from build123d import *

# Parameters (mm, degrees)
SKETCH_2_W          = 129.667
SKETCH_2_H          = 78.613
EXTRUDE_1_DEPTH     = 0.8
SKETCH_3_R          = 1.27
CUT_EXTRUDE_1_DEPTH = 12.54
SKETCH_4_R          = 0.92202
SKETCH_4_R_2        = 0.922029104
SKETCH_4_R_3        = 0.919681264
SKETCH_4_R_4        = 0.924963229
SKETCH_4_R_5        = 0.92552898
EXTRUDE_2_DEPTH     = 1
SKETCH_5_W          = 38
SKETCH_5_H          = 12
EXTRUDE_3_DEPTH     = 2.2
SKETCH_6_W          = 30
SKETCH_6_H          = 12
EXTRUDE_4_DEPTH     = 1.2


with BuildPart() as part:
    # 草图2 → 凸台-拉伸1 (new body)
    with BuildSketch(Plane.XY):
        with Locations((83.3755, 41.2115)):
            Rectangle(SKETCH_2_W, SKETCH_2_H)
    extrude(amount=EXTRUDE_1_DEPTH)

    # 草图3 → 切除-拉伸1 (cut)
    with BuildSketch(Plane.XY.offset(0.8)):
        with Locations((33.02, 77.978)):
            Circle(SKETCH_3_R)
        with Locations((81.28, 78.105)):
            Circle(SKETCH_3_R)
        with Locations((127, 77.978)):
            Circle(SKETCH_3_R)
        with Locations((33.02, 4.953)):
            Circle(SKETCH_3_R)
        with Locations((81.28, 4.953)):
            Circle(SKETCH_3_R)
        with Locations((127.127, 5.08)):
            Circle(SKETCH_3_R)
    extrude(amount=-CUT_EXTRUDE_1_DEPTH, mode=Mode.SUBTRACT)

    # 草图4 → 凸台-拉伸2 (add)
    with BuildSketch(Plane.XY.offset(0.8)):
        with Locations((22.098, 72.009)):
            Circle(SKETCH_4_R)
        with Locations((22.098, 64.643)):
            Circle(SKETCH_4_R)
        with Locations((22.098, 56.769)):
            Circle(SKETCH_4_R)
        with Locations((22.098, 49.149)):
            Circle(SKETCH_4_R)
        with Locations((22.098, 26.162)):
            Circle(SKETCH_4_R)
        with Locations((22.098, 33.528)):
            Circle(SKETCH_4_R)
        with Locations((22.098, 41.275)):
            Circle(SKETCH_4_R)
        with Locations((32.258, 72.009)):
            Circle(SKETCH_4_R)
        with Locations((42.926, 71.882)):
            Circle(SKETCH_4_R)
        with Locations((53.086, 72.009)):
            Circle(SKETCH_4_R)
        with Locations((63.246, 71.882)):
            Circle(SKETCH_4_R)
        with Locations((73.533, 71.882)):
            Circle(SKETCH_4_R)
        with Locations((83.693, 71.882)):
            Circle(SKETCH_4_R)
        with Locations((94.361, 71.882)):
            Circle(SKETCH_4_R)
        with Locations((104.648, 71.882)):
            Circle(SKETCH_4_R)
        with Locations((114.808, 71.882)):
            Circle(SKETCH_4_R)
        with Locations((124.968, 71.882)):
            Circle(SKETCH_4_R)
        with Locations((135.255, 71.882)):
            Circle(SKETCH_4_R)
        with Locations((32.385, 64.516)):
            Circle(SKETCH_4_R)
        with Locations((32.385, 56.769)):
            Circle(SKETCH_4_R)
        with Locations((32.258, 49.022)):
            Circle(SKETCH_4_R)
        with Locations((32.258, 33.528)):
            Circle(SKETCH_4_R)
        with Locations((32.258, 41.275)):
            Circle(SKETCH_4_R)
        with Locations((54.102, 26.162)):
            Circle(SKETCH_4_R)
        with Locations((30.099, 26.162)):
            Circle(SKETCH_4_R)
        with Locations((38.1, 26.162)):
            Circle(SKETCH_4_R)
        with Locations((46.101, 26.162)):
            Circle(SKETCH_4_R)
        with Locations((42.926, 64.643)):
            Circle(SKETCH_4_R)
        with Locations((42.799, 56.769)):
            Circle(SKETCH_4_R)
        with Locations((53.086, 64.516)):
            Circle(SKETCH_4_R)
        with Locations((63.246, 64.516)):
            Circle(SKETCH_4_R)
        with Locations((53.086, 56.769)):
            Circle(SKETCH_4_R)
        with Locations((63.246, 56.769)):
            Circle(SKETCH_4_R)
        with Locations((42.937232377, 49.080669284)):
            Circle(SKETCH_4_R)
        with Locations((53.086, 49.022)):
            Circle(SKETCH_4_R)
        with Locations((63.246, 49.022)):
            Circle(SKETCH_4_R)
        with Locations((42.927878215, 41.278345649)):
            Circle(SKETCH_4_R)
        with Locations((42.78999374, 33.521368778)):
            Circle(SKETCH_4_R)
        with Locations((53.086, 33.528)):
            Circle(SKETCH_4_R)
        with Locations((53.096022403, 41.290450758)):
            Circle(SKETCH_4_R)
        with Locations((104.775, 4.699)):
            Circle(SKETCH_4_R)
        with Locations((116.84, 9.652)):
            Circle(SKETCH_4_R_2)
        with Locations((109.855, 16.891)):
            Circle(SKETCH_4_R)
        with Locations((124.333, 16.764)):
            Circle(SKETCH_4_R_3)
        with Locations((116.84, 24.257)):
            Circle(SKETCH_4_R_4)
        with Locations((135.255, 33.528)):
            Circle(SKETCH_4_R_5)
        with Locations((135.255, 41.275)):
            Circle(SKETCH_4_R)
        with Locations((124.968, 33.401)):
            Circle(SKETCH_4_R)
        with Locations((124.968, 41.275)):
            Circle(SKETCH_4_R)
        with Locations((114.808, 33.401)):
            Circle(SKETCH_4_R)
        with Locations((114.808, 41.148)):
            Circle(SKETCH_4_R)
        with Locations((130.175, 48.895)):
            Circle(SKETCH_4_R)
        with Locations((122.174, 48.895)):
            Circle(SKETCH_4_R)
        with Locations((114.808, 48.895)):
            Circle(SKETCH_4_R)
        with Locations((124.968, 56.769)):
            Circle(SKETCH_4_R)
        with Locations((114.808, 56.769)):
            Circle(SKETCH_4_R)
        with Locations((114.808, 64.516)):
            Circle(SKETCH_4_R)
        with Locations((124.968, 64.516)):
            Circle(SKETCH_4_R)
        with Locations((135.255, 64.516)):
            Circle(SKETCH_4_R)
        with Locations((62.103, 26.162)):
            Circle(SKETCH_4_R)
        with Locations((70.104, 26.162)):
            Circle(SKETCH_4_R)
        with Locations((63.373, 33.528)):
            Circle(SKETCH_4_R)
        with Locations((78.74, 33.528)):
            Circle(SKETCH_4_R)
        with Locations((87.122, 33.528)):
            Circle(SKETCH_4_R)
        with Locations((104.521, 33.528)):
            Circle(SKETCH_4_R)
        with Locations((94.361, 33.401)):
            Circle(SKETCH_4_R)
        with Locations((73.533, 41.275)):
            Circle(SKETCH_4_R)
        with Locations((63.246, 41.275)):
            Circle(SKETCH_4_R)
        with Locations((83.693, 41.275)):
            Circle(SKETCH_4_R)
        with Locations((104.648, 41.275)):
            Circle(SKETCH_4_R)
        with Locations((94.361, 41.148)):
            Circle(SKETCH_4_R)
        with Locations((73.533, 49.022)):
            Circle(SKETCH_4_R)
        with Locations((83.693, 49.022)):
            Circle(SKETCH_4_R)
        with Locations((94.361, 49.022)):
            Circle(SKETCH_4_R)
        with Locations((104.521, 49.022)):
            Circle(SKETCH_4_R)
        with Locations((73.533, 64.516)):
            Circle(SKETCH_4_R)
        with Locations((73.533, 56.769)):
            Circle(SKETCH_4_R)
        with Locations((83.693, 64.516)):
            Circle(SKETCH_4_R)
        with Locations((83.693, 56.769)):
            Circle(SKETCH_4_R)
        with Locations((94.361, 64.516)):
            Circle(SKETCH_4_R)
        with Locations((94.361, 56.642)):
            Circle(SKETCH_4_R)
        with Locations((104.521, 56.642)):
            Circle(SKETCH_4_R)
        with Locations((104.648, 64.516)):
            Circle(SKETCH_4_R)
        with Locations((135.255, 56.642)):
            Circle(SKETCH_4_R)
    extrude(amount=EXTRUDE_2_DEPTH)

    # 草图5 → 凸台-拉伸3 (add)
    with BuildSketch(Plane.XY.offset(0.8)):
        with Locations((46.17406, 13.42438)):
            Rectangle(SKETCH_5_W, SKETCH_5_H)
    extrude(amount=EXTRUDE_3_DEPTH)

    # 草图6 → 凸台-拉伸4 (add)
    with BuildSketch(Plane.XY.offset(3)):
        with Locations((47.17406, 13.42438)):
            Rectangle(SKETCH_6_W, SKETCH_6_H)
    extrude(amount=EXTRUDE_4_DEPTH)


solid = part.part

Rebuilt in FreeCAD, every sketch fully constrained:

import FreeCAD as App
import Part
import Sketcher
from FreeCAD import Vector


def add_polygon(sketch, points):
    """Adds a closed chain of lines whose ends are joined by coincident constraints."""
    first, n = sketch.GeometryCount, len(points)
    for a, b in zip(points, points[1:] + points[:1]):
        sketch.addGeometry(Part.LineSegment(App.Vector(*a, 0), App.Vector(*b, 0)), False)
    for i in range(n):
        sketch.addConstraint(Sketcher.Constraint("Coincident", first + i, 2, first + (i + 1) % n, 1))

doc = App.newDocument("Part")
body = doc.addObject("PartDesign::Body", "Body")

# Sketch on XY plane
sketch1 = body.newObject("Sketcher::SketchObject", "Sketch")
sketch1.AttachmentSupport = (doc.getObject("XY_Plane"), [""])
sketch1.MapMode = "FlatFace"
add_polygon(sketch1, [(18.542, 80.518), (18.542, 1.905), (148.209, 1.905), (148.209, 80.518)])  # lines 0-3
sketch1.addConstraint([
    Sketcher.Constraint("Vertical", 0),
    Sketcher.Constraint("Horizontal", 1),
    Sketcher.Constraint("Vertical", 2),
    Sketcher.Constraint("Horizontal", 3),
    Sketcher.Constraint("DistanceX", 1, 1, 1, 2, 129.667),
    Sketcher.Constraint("DistanceY", 0, 2, 0, 1, 78.613),
    Sketcher.Constraint("DistanceX", -1, 1, 0, 2, 18.542),
    Sketcher.Constraint("DistanceY", -1, 1, 0, 2, 1.905),
])
pad1 = body.newObject("PartDesign::Pad", "Pad")
pad1.Profile = sketch1
pad1.Length = 0.8

# Sketch on XY plane
sketch2 = body.newObject("Sketcher::SketchObject", "Sketch001")
sketch2.AttachmentSupport = (doc.getObject("XY_Plane"), [""])
sketch2.MapMode = "FlatFace"
sketch2.AttachmentOffset = App.Placement(Vector(0, 0, 0.8), App.Rotation())
sketch2.addGeometry([
    Part.Circle(Vector(33.02, 77.978, 0), Vector(0, 0, 1), 1.27),  # 0
    Part.Circle(Vector(81.28, 78.105, 0), Vector(0, 0, 1), 1.27),  # 1
    Part.Circle(Vector(127, 77.978, 0), Vector(0, 0, 1), 1.27),  # 2
    Part.Circle(Vector(33.02, 4.953, 0), Vector(0, 0, 1), 1.27),  # 3
    Part.Circle(Vector(81.28, 4.953, 0), Vector(0, 0, 1), 1.27),  # 4
    Part.Circle(Vector(127.127, 5.08, 0), Vector(0, 0, 1), 1.27),  # 5
], False)
sketch2.addConstraint([
    Sketcher.Constraint("Equal", 0, 1),
    Sketcher.Constraint("Equal", 1, 2),
    Sketcher.Constraint("Equal", 2, 3),
    Sketcher.Constraint("Equal", 3, 4),
    Sketcher.Constraint("Equal", 4, 5),
    Sketcher.Constraint("Horizontal", 0, 3, 2, 3),
    Sketcher.Constraint("Horizontal", 3, 3, 4, 3),
    Sketcher.Constraint("Vertical", 0, 3, 3, 3),
    Sketcher.Constraint("Vertical", 1, 3, 4, 3),
    Sketcher.Constraint("Diameter", 0, 2.54),
    Sketcher.Constraint("DistanceX", -1, 1, 2, 3, 127.0),
    Sketcher.Constraint("DistanceX", -1, 1, 0, 3, 33.02),
    Sketcher.Constraint("DistanceX", -1, 1, 1, 3, 81.28),
    Sketcher.Constraint("DistanceY", -1, 1, 5, 3, 5.08),
    Sketcher.Constraint("DistanceY", -1, 1, 0, 3, 77.978),
    Sketcher.Constraint("DistanceY", -1, 1, 1, 3, 78.105),
    Sketcher.Constraint("DistanceY", -1, 1, 3, 3, 4.953),
    Sketcher.Constraint("DistanceX", -1, 1, 5, 3, 127.127),
])
pocket1 = body.newObject("PartDesign::Pocket", "Pocket")
pocket1.Profile = sketch2
pocket1.Length = 12.54

# Sketch on XY plane
sketch3 = body.newObject("Sketcher::SketchObject", "Sketch002")
sketch3.AttachmentSupport = (doc.getObject("XY_Plane"), [""])
sketch3.MapMode = "FlatFace"
sketch3.AttachmentOffset = App.Placement(Vector(0, 0, 0.8), App.Rotation())
sketch3.addGeometry([
    Part.Circle(Vector(22.098, 72.009, 0), Vector(0, 0, 1), 0.92202),  # 0
    Part.Circle(Vector(22.098, 64.643, 0), Vector(0, 0, 1), 0.92202),  # 1
    Part.Circle(Vector(22.098, 56.769, 0), Vector(0, 0, 1), 0.92202),  # 2
    Part.Circle(Vector(22.098, 49.149, 0), Vector(0, 0, 1), 0.92202),  # 3
    Part.Circle(Vector(22.098, 26.162, 0), Vector(0, 0, 1), 0.92202),  # 4
    Part.Circle(Vector(22.098, 33.528, 0), Vector(0, 0, 1), 0.92202),  # 5
    Part.Circle(Vector(22.098, 41.275, 0), Vector(0, 0, 1), 0.92202),  # 6
    Part.Circle(Vector(32.258, 72.009, 0), Vector(0, 0, 1), 0.92202),  # 7
    Part.Circle(Vector(42.926, 71.882, 0), Vector(0, 0, 1), 0.92202),  # 8
    Part.Circle(Vector(53.086, 72.009, 0), Vector(0, 0, 1), 0.92202),  # 9
    Part.Circle(Vector(63.246, 71.882, 0), Vector(0, 0, 1), 0.92202),  # 10
    Part.Circle(Vector(73.533, 71.882, 0), Vector(0, 0, 1), 0.92202),  # 11
    Part.Circle(Vector(83.693, 71.882, 0), Vector(0, 0, 1), 0.92202),  # 12
    Part.Circle(Vector(94.361, 71.882, 0), Vector(0, 0, 1), 0.92202),  # 13
    Part.Circle(Vector(104.648, 71.882, 0), Vector(0, 0, 1), 0.92202),  # 14
    Part.Circle(Vector(114.808, 71.882, 0), Vector(0, 0, 1), 0.92202),  # 15
    Part.Circle(Vector(124.968, 71.882, 0), Vector(0, 0, 1), 0.92202),  # 16
    Part.Circle(Vector(135.255, 71.882, 0), Vector(0, 0, 1), 0.92202),  # 17
    Part.Circle(Vector(32.385, 64.516, 0), Vector(0, 0, 1), 0.92202),  # 18
    Part.Circle(Vector(32.385, 56.769, 0), Vector(0, 0, 1), 0.92202),  # 19
    Part.Circle(Vector(32.258, 49.022, 0), Vector(0, 0, 1), 0.92202),  # 20
    Part.Circle(Vector(32.258, 33.528, 0), Vector(0, 0, 1), 0.92202),  # 21
    Part.Circle(Vector(32.258, 41.275, 0), Vector(0, 0, 1), 0.92202),  # 22
    Part.Circle(Vector(54.102, 26.162, 0), Vector(0, 0, 1), 0.92202),  # 23
    Part.Circle(Vector(30.099, 26.162, 0), Vector(0, 0, 1), 0.92202),  # 24
    Part.Circle(Vector(38.1, 26.162, 0), Vector(0, 0, 1), 0.92202),  # 25
    Part.Circle(Vector(46.101, 26.162, 0), Vector(0, 0, 1), 0.92202),  # 26
    Part.Circle(Vector(42.926, 64.643, 0), Vector(0, 0, 1), 0.92202),  # 27
    Part.Circle(Vector(42.799, 56.769, 0), Vector(0, 0, 1), 0.92202),  # 28
    Part.Circle(Vector(53.086, 64.516, 0), Vector(0, 0, 1), 0.92202),  # 29
    Part.Circle(Vector(63.246, 64.516, 0), Vector(0, 0, 1), 0.92202),  # 30
    Part.Circle(Vector(53.086, 56.769, 0), Vector(0, 0, 1), 0.92202),  # 31
    Part.Circle(Vector(63.246, 56.769, 0), Vector(0, 0, 1), 0.92202),  # 32
    Part.Circle(Vector(42.937232, 49.080669, 0), Vector(0, 0, 1), 0.92202),  # 33
    Part.Circle(Vector(53.086, 49.022, 0), Vector(0, 0, 1), 0.92202),  # 34
    Part.Circle(Vector(63.246, 49.022, 0), Vector(0, 0, 1), 0.92202),  # 35
    Part.Circle(Vector(42.927878, 41.278346, 0), Vector(0, 0, 1), 0.92202),  # 36
    Part.Circle(Vector(42.789994, 33.521369, 0), Vector(0, 0, 1), 0.92202),  # 37
    Part.Circle(Vector(53.086, 33.528, 0), Vector(0, 0, 1), 0.92202),  # 38
    Part.Circle(Vector(53.096022, 41.290451, 0), Vector(0, 0, 1), 0.92202),  # 39
    Part.Circle(Vector(104.775, 4.699, 0), Vector(0, 0, 1), 0.92202),  # 40
    Part.Circle(Vector(116.84, 9.652, 0), Vector(0, 0, 1), 0.922029),  # 41
    Part.Circle(Vector(109.855, 16.891, 0), Vector(0, 0, 1), 0.92202),  # 42
    Part.Circle(Vector(124.333, 16.764, 0), Vector(0, 0, 1), 0.919681),  # 43
    Part.Circle(Vector(116.84, 24.257, 0), Vector(0, 0, 1), 0.924963),  # 44
    Part.Circle(Vector(135.255, 33.528, 0), Vector(0, 0, 1), 0.925529),  # 45
    Part.Circle(Vector(135.255, 41.275, 0), Vector(0, 0, 1), 0.92202),  # 46
    Part.Circle(Vector(124.968, 33.401, 0), Vector(0, 0, 1), 0.92202),  # 47
    Part.Circle(Vector(124.968, 41.275, 0), Vector(0, 0, 1), 0.92202),  # 48
    Part.Circle(Vector(114.808, 33.401, 0), Vector(0, 0, 1), 0.92202),  # 49
    Part.Circle(Vector(114.808, 41.148, 0), Vector(0, 0, 1), 0.92202),  # 50
    Part.Circle(Vector(130.175, 48.895, 0), Vector(0, 0, 1), 0.92202),  # 51
    Part.Circle(Vector(122.174, 48.895, 0), Vector(0, 0, 1), 0.92202),  # 52
    Part.Circle(Vector(114.808, 48.895, 0), Vector(0, 0, 1), 0.92202),  # 53
    Part.Circle(Vector(124.968, 56.769, 0), Vector(0, 0, 1), 0.92202),  # 54
    Part.Circle(Vector(114.808, 56.769, 0), Vector(0, 0, 1), 0.92202),  # 55
    Part.Circle(Vector(114.808, 64.516, 0), Vector(0, 0, 1), 0.92202),  # 56
    Part.Circle(Vector(124.968, 64.516, 0), Vector(0, 0, 1), 0.92202),  # 57
    Part.Circle(Vector(135.255, 64.516, 0), Vector(0, 0, 1), 0.92202),  # 58
    Part.Circle(Vector(62.103, 26.162, 0), Vector(0, 0, 1), 0.92202),  # 59
    Part.Circle(Vector(70.104, 26.162, 0), Vector(0, 0, 1), 0.92202),  # 60
    Part.Circle(Vector(63.373, 33.528, 0), Vector(0, 0, 1), 0.92202),  # 61
    Part.Circle(Vector(78.74, 33.528, 0), Vector(0, 0, 1), 0.92202),  # 62
    Part.Circle(Vector(87.122, 33.528, 0), Vector(0, 0, 1), 0.92202),  # 63
    Part.Circle(Vector(104.521, 33.528, 0), Vector(0, 0, 1), 0.92202),  # 64
    Part.Circle(Vector(94.361, 33.401, 0), Vector(0, 0, 1), 0.92202),  # 65
    Part.Circle(Vector(73.533, 41.275, 0), Vector(0, 0, 1), 0.92202),  # 66
    Part.Circle(Vector(63.246, 41.275, 0), Vector(0, 0, 1), 0.92202),  # 67
    Part.Circle(Vector(83.693, 41.275, 0), Vector(0, 0, 1), 0.92202),  # 68
    Part.Circle(Vector(104.648, 41.275, 0), Vector(0, 0, 1), 0.92202),  # 69
    Part.Circle(Vector(94.361, 41.148, 0), Vector(0, 0, 1), 0.92202),  # 70
    Part.Circle(Vector(73.533, 49.022, 0), Vector(0, 0, 1), 0.92202),  # 71
    Part.Circle(Vector(83.693, 49.022, 0), Vector(0, 0, 1), 0.92202),  # 72
    Part.Circle(Vector(94.361, 49.022, 0), Vector(0, 0, 1), 0.92202),  # 73
    Part.Circle(Vector(104.521, 49.022, 0), Vector(0, 0, 1), 0.92202),  # 74
    Part.Circle(Vector(73.533, 64.516, 0), Vector(0, 0, 1), 0.92202),  # 75
    Part.Circle(Vector(73.533, 56.769, 0), Vector(0, 0, 1), 0.92202),  # 76
    Part.Circle(Vector(83.693, 64.516, 0), Vector(0, 0, 1), 0.92202),  # 77
    Part.Circle(Vector(83.693, 56.769, 0), Vector(0, 0, 1), 0.92202),  # 78
    Part.Circle(Vector(94.361, 64.516, 0), Vector(0, 0, 1), 0.92202),  # 79
    Part.Circle(Vector(94.361, 56.642, 0), Vector(0, 0, 1), 0.92202),  # 80
    Part.Circle(Vector(104.521, 56.642, 0), Vector(0, 0, 1), 0.92202),  # 81
    Part.Circle(Vector(104.648, 64.516, 0), Vector(0, 0, 1), 0.92202),  # 82
    Part.Circle(Vector(135.255, 56.642, 0), Vector(0, 0, 1), 0.92202),  # 83
], False)
sketch3.addConstraint([
    Sketcher.Constraint("Equal", 0, 1),
    Sketcher.Constraint("Equal", 1, 2),
    Sketcher.Constraint("Equal", 2, 3),
    Sketcher.Constraint("Equal", 3, 4),
    Sketcher.Constraint("Equal", 4, 5),
    Sketcher.Constraint("Equal", 5, 6),
    Sketcher.Constraint("Equal", 6, 7),
    Sketcher.Constraint("Equal", 7, 8),
    Sketcher.Constraint("Equal", 8, 9),
    Sketcher.Constraint("Equal", 9, 10),
    Sketcher.Constraint("Equal", 10, 11),
    Sketcher.Constraint("Equal", 11, 12),
    Sketcher.Constraint("Equal", 12, 13),
    Sketcher.Constraint("Equal", 13, 14),
    Sketcher.Constraint("Equal", 14, 15),
    Sketcher.Constraint("Equal", 15, 16),
    Sketcher.Constraint("Equal", 16, 17),
    Sketcher.Constraint("Equal", 17, 18),
    Sketcher.Constraint("Equal", 18, 19),
    Sketcher.Constraint("Equal", 19, 20),
    Sketcher.Constraint("Equal", 20, 21),
    Sketcher.Constraint("Equal", 21, 22),
    Sketcher.Constraint("Equal", 22, 23),
    Sketcher.Constraint("Equal", 23, 24),
    Sketcher.Constraint("Equal", 24, 25),
    Sketcher.Constraint("Equal", 25, 26),
    Sketcher.Constraint("Equal", 26, 27),
    Sketcher.Constraint("Equal", 27, 28),
    Sketcher.Constraint("Equal", 28, 29),
    Sketcher.Constraint("Equal", 29, 30),
    Sketcher.Constraint("Equal", 30, 31),
    Sketcher.Constraint("Equal", 31, 32),
    Sketcher.Constraint("Equal", 32, 33),
    Sketcher.Constraint("Equal", 33, 34),
    Sketcher.Constraint("Equal", 34, 35),
    Sketcher.Constraint("Equal", 35, 36),
    Sketcher.Constraint("Equal", 36, 37),
    Sketcher.Constraint("Equal", 37, 38),
    Sketcher.Constraint("Equal", 38, 39),
    Sketcher.Constraint("Equal", 39, 40),
    Sketcher.Constraint("Equal", 40, 42),
    Sketcher.Constraint("Equal", 42, 46),
    Sketcher.Constraint("Equal", 46, 47),
    Sketcher.Constraint("Equal", 47, 48),
    Sketcher.Constraint("Equal", 48, 49),
    Sketcher.Constraint("Equal", 49, 50),
    Sketcher.Constraint("Equal", 50, 51),
    Sketcher.Constraint("Equal", 51, 52),
    Sketcher.Constraint("Equal", 52, 53),
    Sketcher.Constraint("Equal", 53, 54),
    Sketcher.Constraint("Equal", 54, 55),
    Sketcher.Constraint("Equal", 55, 56),
    Sketcher.Constraint("Equal", 56, 57),
    Sketcher.Constraint("Equal", 57, 58),
    Sketcher.Constraint("Equal", 58, 59),
    Sketcher.Constraint("Equal", 59, 60),
    Sketcher.Constraint("Equal", 60, 61),
    Sketcher.Constraint("Equal", 61, 62),
    Sketcher.Constraint("Equal", 62, 63),
    Sketcher.Constraint("Equal", 63, 64),
    Sketcher.Constraint("Equal", 64, 65),
    Sketcher.Constraint("Equal", 65, 66),
    Sketcher.Constraint("Equal", 66, 67),
    Sketcher.Constraint("Equal", 67, 68),
    Sketcher.Constraint("Equal", 68, 69),
    Sketcher.Constraint("Equal", 69, 70),
    Sketcher.Constraint("Equal", 70, 71),
    Sketcher.Constraint("Equal", 71, 72),
    Sketcher.Constraint("Equal", 72, 73),
    Sketcher.Constraint("Equal", 73, 74),
    Sketcher.Constraint("Equal", 74, 75),
    Sketcher.Constraint("Equal", 75, 76),
    Sketcher.Constraint("Equal", 76, 77),
    Sketcher.Constraint("Equal", 77, 78),
    Sketcher.Constraint("Equal", 78, 79),
    Sketcher.Constraint("Equal", 79, 80),
    Sketcher.Constraint("Equal", 80, 81),
    Sketcher.Constraint("Equal", 81, 82),
    Sketcher.Constraint("Equal", 82, 83),
    Sketcher.Constraint("Horizontal", 0, 3, 7, 3),
    Sketcher.Constraint("Horizontal", 7, 3, 9, 3),
    Sketcher.Constraint("Horizontal", 8, 3, 10, 3),
    Sketcher.Constraint("Horizontal", 10, 3, 11, 3),
    Sketcher.Constraint("Horizontal", 11, 3, 12, 3),
    Sketcher.Constraint("Horizontal", 12, 3, 13, 3),
    Sketcher.Constraint("Horizontal", 13, 3, 14, 3),
    Sketcher.Constraint("Horizontal", 14, 3, 15, 3),
    Sketcher.Constraint("Horizontal", 15, 3, 16, 3),
    Sketcher.Constraint("Horizontal", 16, 3, 17, 3),
    Sketcher.Constraint("Horizontal", 2, 3, 19, 3),
    Sketcher.Constraint("Horizontal", 5, 3, 21, 3),
    Sketcher.Constraint("Horizontal", 6, 3, 22, 3),
    Sketcher.Constraint("Horizontal", 4, 3, 23, 3),
    Sketcher.Constraint("Horizontal", 23, 3, 24, 3),
    Sketcher.Constraint("Horizontal", 24, 3, 25, 3),
    Sketcher.Constraint("Horizontal", 25, 3, 26, 3),
    Sketcher.Constraint("Horizontal", 1, 3, 27, 3),
    Sketcher.Constraint("Horizontal", 19, 3, 28, 3),
    Sketcher.Constraint("Horizontal", 18, 3, 29, 3),
    Sketcher.Constraint("Horizontal", 29, 3, 30, 3),
    Sketcher.Constraint("Horizontal", 28, 3, 31, 3),
    Sketcher.Constraint("Horizontal", 31, 3, 32, 3),
    Sketcher.Constraint("Horizontal", 20, 3, 34, 3),
    Sketcher.Constraint("Horizontal", 34, 3, 35, 3),
    Sketcher.Constraint("Horizontal", 21, 3, 38, 3),
    Sketcher.Constraint("Horizontal", 38, 3, 45, 3),
    Sketcher.Constraint("Horizontal", 22, 3, 46, 3),
    Sketcher.Constraint("Horizontal", 46, 3, 48, 3),
    Sketcher.Constraint("Horizontal", 47, 3, 49, 3),
    Sketcher.Constraint("Horizontal", 51, 3, 52, 3),
    Sketcher.Constraint("Horizontal", 52, 3, 53, 3),
    Sketcher.Constraint("Horizontal", 32, 3, 54, 3),
    Sketcher.Constraint("Horizontal", 54, 3, 55, 3),
    Sketcher.Constraint("Horizontal", 30, 3, 56, 3),
    Sketcher.Constraint("Horizontal", 56, 3, 57, 3),
    Sketcher.Constraint("Horizontal", 57, 3, 58, 3),
    Sketcher.Constraint("Horizontal", 26, 3, 59, 3),
    Sketcher.Constraint("Horizontal", 59, 3, 60, 3),
    Sketcher.Constraint("Horizontal", 45, 3, 61, 3),
    Sketcher.Constraint("Horizontal", 61, 3, 62, 3),
    Sketcher.Constraint("Horizontal", 62, 3, 63, 3),
    Sketcher.Constraint("Horizontal", 63, 3, 64, 3),
    Sketcher.Constraint("Horizontal", 49, 3, 65, 3),
    Sketcher.Constraint("Horizontal", 48, 3, 66, 3),
    Sketcher.Constraint("Horizontal", 66, 3, 67, 3),
    Sketcher.Constraint("Horizontal", 67, 3, 68, 3),
    Sketcher.Constraint("Horizontal", 68, 3, 69, 3),
    Sketcher.Constraint("Horizontal", 50, 3, 70, 3),
    Sketcher.Constraint("Horizontal", 35, 3, 71, 3),
    Sketcher.Constraint("Horizontal", 71, 3, 72, 3),
    Sketcher.Constraint("Horizontal", 72, 3, 73, 3),
    Sketcher.Constraint("Horizontal", 73, 3, 74, 3),
    Sketcher.Constraint("Horizontal", 58, 3, 75, 3),
    Sketcher.Constraint("Horizontal", 55, 3, 76, 3),
    Sketcher.Constraint("Horizontal", 75, 3, 77, 3),
    Sketcher.Constraint("Horizontal", 76, 3, 78, 3),
    Sketcher.Constraint("Horizontal", 77, 3, 79, 3),
    Sketcher.Constraint("Horizontal", 80, 3, 81, 3),
    Sketcher.Constraint("Horizontal", 79, 3, 82, 3),
    Sketcher.Constraint("Horizontal", 81, 3, 83, 3),
    Sketcher.Constraint("Vertical", 0, 3, 1, 3),
    Sketcher.Constraint("Vertical", 1, 3, 2, 3),
    Sketcher.Constraint("Vertical", 2, 3, 3, 3),
    Sketcher.Constraint("Vertical", 3, 3, 4, 3),
    Sketcher.Constraint("Vertical", 4, 3, 5, 3),
    Sketcher.Constraint("Vertical", 5, 3, 6, 3),
    Sketcher.Constraint("Vertical", 18, 3, 19, 3),
    Sketcher.Constraint("Vertical", 7, 3, 20, 3),
    Sketcher.Constraint("Vertical", 20, 3, 21, 3),
    Sketcher.Constraint("Vertical", 21, 3, 22, 3),
    Sketcher.Constraint("Vertical", 8, 3, 27, 3),
    Sketcher.Constraint("Vertical", 9, 3, 29, 3),
    Sketcher.Constraint("Vertical", 10, 3, 30, 3),
    Sketcher.Constraint("Vertical", 29, 3, 31, 3),
    Sketcher.Constraint("Vertical", 30, 3, 32, 3),
    Sketcher.Constraint("Vertical", 31, 3, 34, 3),
    Sketcher.Constraint("Vertical", 32, 3, 35, 3),
    Sketcher.Constraint("Vertical", 34, 3, 38, 3),
    Sketcher.Constraint("Vertical", 41, 3, 44, 3),
    Sketcher.Constraint("Vertical", 17, 3, 45, 3),
    Sketcher.Constraint("Vertical", 45, 3, 46, 3),
    Sketcher.Constraint("Vertical", 16, 3, 47, 3),
    Sketcher.Constraint("Vertical", 47, 3, 48, 3),
    Sketcher.Constraint("Vertical", 15, 3, 49, 3),
    Sketcher.Constraint("Vertical", 49, 3, 50, 3),
    Sketcher.Constraint("Vertical", 50, 3, 53, 3),
    Sketcher.Constraint("Vertical", 48, 3, 54, 3),
    Sketcher.Constraint("Vertical", 53, 3, 55, 3),
    Sketcher.Constraint("Vertical", 55, 3, 56, 3),
    Sketcher.Constraint("Vertical", 54, 3, 57, 3),
    Sketcher.Constraint("Vertical", 46, 3, 58, 3),
    Sketcher.Constraint("Vertical", 13, 3, 65, 3),
    Sketcher.Constraint("Vertical", 11, 3, 66, 3),
    Sketcher.Constraint("Vertical", 35, 3, 67, 3),
    Sketcher.Constraint("Vertical", 12, 3, 68, 3),
    Sketcher.Constraint("Vertical", 14, 3, 69, 3),
    Sketcher.Constraint("Vertical", 65, 3, 70, 3),
    Sketcher.Constraint("Vertical", 66, 3, 71, 3),
    Sketcher.Constraint("Vertical", 68, 3, 72, 3),
    Sketcher.Constraint("Vertical", 70, 3, 73, 3),
    Sketcher.Constraint("Vertical", 64, 3, 74, 3),
    Sketcher.Constraint("Vertical", 71, 3, 75, 3),
    Sketcher.Constraint("Vertical", 75, 3, 76, 3),
    Sketcher.Constraint("Vertical", 72, 3, 77, 3),
    Sketcher.Constraint("Vertical", 77, 3, 78, 3),
    Sketcher.Constraint("Vertical", 73, 3, 79, 3),
    Sketcher.Constraint("Vertical", 79, 3, 80, 3),
    Sketcher.Constraint("Vertical", 74, 3, 81, 3),
    Sketcher.Constraint("Vertical", 69, 3, 82, 3),
    Sketcher.Constraint("Vertical", 58, 3, 83, 3),
    Sketcher.Constraint("DistanceX", -1, 1, 25, 3, 38.1),
    Sketcher.Constraint("Diameter", 0, 1.84404),
    Sketcher.Constraint("Diameter", 41, 1.844058),
    Sketcher.Constraint("DistanceX", -1, 1, 41, 3, 116.84),
    Sketcher.Constraint("DistanceX", -1, 1, 62, 3, 78.74),
    Sketcher.Constraint("Diameter", 43, 1.839363),
    Sketcher.Constraint("Diameter", 44, 1.849926),
    Sketcher.Constraint("Diameter", 45, 1.851058),
    Sketcher.Constraint("DistanceX", -1, 1, 0, 3, 22.098),
    Sketcher.Constraint("DistanceY", -1, 1, 0, 3, 72.009),
    Sketcher.Constraint("DistanceY", -1, 1, 1, 3, 64.643),
    Sketcher.Constraint("DistanceY", -1, 1, 2, 3, 56.769),
    Sketcher.Constraint("DistanceY", -1, 1, 3, 3, 49.149),
    Sketcher.Constraint("DistanceY", -1, 1, 4, 3, 26.162),
    Sketcher.Constraint("DistanceY", -1, 1, 5, 3, 33.528),
    Sketcher.Constraint("DistanceY", -1, 1, 6, 3, 41.275),
    Sketcher.Constraint("DistanceX", -1, 1, 7, 3, 32.258),
    Sketcher.Constraint("DistanceX", -1, 1, 8, 3, 42.926),
    Sketcher.Constraint("DistanceY", -1, 1, 8, 3, 71.882),
    Sketcher.Constraint("DistanceX", -1, 1, 9, 3, 53.086),
    Sketcher.Constraint("DistanceX", -1, 1, 10, 3, 63.246),
    Sketcher.Constraint("DistanceX", -1, 1, 11, 3, 73.533),
    Sketcher.Constraint("DistanceX", -1, 1, 12, 3, 83.693),
    Sketcher.Constraint("DistanceX", -1, 1, 13, 3, 94.361),
    Sketcher.Constraint("DistanceX", -1, 1, 14, 3, 104.648),
    Sketcher.Constraint("DistanceX", -1, 1, 15, 3, 114.808),
    Sketcher.Constraint("DistanceX", -1, 1, 16, 3, 124.968),
    Sketcher.Constraint("DistanceX", -1, 1, 17, 3, 135.255),
    Sketcher.Constraint("DistanceX", -1, 1, 18, 3, 32.385),
    Sketcher.Constraint("DistanceY", -1, 1, 18, 3, 64.516),
    Sketcher.Constraint("DistanceY", -1, 1, 20, 3, 49.022),
    Sketcher.Constraint("DistanceX", -1, 1, 23, 3, 54.102),
    Sketcher.Constraint("DistanceX", -1, 1, 24, 3, 30.099),
    Sketcher.Constraint("DistanceX", -1, 1, 26, 3, 46.101),
    Sketcher.Constraint("DistanceX", -1, 1, 28, 3, 42.799),
    Sketcher.Constraint("DistanceX", -1, 1, 40, 3, 104.775),
    Sketcher.Constraint("DistanceY", -1, 1, 40, 3, 4.699),
    Sketcher.Constraint("DistanceY", -1, 1, 41, 3, 9.652),
    Sketcher.Constraint("DistanceX", -1, 1, 42, 3, 109.855),
    Sketcher.Constraint("DistanceY", -1, 1, 42, 3, 16.891),
    Sketcher.Constraint("DistanceX", -1, 1, 43, 3, 124.333),
    Sketcher.Constraint("DistanceY", -1, 1, 43, 3, 16.764),
    Sketcher.Constraint("DistanceY", -1, 1, 44, 3, 24.257),
    Sketcher.Constraint("DistanceY", -1, 1, 47, 3, 33.401),
    Sketcher.Constraint("DistanceY", -1, 1, 50, 3, 41.148),
    Sketcher.Constraint("DistanceX", -1, 1, 51, 3, 130.175),
    Sketcher.Constraint("DistanceY", -1, 1, 51, 3, 48.895),
    Sketcher.Constraint("DistanceX", -1, 1, 52, 3, 122.174),
    Sketcher.Constraint("DistanceX", -1, 1, 59, 3, 62.103),
    Sketcher.Constraint("DistanceX", -1, 1, 60, 3, 70.104),
    Sketcher.Constraint("DistanceX", -1, 1, 61, 3, 63.373),
    Sketcher.Constraint("DistanceX", -1, 1, 63, 3, 87.122),
    Sketcher.Constraint("DistanceX", -1, 1, 64, 3, 104.521),
    Sketcher.Constraint("DistanceY", -1, 1, 80, 3, 56.642),
    Sketcher.Constraint("DistanceY", -1, 1, 33, 3, 49.080669),
    Sketcher.Constraint("DistanceX", -1, 1, 36, 3, 42.927878),
    Sketcher.Constraint("DistanceY", -1, 1, 37, 3, 33.521369),
    Sketcher.Constraint("DistanceY", -1, 1, 39, 3, 41.290451),
    Sketcher.Constraint("DistanceX", -1, 1, 33, 3, 42.937232),
    Sketcher.Constraint("DistanceY", -1, 1, 36, 3, 41.278346),
    Sketcher.Constraint("DistanceX", -1, 1, 37, 3, 42.789994),
    Sketcher.Constraint("DistanceX", -1, 1, 39, 3, 53.096022),
])
pad2 = body.newObject("PartDesign::Pad", "Pad001")
pad2.Profile = sketch3
pad2.Length = 1

# Sketch on XY plane
sketch4 = body.newObject("Sketcher::SketchObject", "Sketch003")
sketch4.AttachmentSupport = (doc.getObject("XY_Plane"), [""])
sketch4.MapMode = "FlatFace"
sketch4.AttachmentOffset = App.Placement(Vector(0, 0, 0.8), App.Rotation())
add_polygon(sketch4, [(27.17406, 19.42438), (27.17406, 7.42438), (65.17406, 7.42438), (65.17406, 19.42438)])  # lines 0-3
sketch4.addConstraint([
    Sketcher.Constraint("Vertical", 0),
    Sketcher.Constraint("Horizontal", 1),
    Sketcher.Constraint("Vertical", 2),
    Sketcher.Constraint("Horizontal", 3),
    Sketcher.Constraint("DistanceX", 1, 1, 1, 2, 38.0),
    Sketcher.Constraint("DistanceY", 0, 2, 0, 1, 12.0),
    Sketcher.Constraint("DistanceX", -1, 1, 0, 2, 27.17406),
    Sketcher.Constraint("DistanceY", -1, 1, 0, 2, 7.42438),
])
pad3 = body.newObject("PartDesign::Pad", "Pad002")
pad3.Profile = sketch4
pad3.Length = 2.2

# Sketch on XY plane
sketch5 = body.newObject("Sketcher::SketchObject", "Sketch004")
sketch5.AttachmentSupport = (doc.getObject("XY_Plane"), [""])
sketch5.MapMode = "FlatFace"
sketch5.AttachmentOffset = App.Placement(Vector(0, 0, 3), App.Rotation())
add_polygon(sketch5, [(32.17406, 19.42438), (32.17406, 7.42438), (62.17406, 7.42438), (62.17406, 19.42438)])  # lines 0-3
sketch5.addConstraint([
    Sketcher.Constraint("Vertical", 0),
    Sketcher.Constraint("Horizontal", 1),
    Sketcher.Constraint("Vertical", 2),
    Sketcher.Constraint("Horizontal", 3),
    Sketcher.Constraint("DistanceX", 1, 1, 1, 2, 30.0),
    Sketcher.Constraint("DistanceY", 0, 2, 0, 1, 12.0),
    Sketcher.Constraint("DistanceX", -1, 1, 0, 2, 32.17406),
    Sketcher.Constraint("DistanceY", -1, 1, 0, 2, 7.42438),
])
pad4 = body.newObject("PartDesign::Pad", "Pad003")
pad4.Profile = sketch5
pad4.Length = 1.2

doc.recompute()
